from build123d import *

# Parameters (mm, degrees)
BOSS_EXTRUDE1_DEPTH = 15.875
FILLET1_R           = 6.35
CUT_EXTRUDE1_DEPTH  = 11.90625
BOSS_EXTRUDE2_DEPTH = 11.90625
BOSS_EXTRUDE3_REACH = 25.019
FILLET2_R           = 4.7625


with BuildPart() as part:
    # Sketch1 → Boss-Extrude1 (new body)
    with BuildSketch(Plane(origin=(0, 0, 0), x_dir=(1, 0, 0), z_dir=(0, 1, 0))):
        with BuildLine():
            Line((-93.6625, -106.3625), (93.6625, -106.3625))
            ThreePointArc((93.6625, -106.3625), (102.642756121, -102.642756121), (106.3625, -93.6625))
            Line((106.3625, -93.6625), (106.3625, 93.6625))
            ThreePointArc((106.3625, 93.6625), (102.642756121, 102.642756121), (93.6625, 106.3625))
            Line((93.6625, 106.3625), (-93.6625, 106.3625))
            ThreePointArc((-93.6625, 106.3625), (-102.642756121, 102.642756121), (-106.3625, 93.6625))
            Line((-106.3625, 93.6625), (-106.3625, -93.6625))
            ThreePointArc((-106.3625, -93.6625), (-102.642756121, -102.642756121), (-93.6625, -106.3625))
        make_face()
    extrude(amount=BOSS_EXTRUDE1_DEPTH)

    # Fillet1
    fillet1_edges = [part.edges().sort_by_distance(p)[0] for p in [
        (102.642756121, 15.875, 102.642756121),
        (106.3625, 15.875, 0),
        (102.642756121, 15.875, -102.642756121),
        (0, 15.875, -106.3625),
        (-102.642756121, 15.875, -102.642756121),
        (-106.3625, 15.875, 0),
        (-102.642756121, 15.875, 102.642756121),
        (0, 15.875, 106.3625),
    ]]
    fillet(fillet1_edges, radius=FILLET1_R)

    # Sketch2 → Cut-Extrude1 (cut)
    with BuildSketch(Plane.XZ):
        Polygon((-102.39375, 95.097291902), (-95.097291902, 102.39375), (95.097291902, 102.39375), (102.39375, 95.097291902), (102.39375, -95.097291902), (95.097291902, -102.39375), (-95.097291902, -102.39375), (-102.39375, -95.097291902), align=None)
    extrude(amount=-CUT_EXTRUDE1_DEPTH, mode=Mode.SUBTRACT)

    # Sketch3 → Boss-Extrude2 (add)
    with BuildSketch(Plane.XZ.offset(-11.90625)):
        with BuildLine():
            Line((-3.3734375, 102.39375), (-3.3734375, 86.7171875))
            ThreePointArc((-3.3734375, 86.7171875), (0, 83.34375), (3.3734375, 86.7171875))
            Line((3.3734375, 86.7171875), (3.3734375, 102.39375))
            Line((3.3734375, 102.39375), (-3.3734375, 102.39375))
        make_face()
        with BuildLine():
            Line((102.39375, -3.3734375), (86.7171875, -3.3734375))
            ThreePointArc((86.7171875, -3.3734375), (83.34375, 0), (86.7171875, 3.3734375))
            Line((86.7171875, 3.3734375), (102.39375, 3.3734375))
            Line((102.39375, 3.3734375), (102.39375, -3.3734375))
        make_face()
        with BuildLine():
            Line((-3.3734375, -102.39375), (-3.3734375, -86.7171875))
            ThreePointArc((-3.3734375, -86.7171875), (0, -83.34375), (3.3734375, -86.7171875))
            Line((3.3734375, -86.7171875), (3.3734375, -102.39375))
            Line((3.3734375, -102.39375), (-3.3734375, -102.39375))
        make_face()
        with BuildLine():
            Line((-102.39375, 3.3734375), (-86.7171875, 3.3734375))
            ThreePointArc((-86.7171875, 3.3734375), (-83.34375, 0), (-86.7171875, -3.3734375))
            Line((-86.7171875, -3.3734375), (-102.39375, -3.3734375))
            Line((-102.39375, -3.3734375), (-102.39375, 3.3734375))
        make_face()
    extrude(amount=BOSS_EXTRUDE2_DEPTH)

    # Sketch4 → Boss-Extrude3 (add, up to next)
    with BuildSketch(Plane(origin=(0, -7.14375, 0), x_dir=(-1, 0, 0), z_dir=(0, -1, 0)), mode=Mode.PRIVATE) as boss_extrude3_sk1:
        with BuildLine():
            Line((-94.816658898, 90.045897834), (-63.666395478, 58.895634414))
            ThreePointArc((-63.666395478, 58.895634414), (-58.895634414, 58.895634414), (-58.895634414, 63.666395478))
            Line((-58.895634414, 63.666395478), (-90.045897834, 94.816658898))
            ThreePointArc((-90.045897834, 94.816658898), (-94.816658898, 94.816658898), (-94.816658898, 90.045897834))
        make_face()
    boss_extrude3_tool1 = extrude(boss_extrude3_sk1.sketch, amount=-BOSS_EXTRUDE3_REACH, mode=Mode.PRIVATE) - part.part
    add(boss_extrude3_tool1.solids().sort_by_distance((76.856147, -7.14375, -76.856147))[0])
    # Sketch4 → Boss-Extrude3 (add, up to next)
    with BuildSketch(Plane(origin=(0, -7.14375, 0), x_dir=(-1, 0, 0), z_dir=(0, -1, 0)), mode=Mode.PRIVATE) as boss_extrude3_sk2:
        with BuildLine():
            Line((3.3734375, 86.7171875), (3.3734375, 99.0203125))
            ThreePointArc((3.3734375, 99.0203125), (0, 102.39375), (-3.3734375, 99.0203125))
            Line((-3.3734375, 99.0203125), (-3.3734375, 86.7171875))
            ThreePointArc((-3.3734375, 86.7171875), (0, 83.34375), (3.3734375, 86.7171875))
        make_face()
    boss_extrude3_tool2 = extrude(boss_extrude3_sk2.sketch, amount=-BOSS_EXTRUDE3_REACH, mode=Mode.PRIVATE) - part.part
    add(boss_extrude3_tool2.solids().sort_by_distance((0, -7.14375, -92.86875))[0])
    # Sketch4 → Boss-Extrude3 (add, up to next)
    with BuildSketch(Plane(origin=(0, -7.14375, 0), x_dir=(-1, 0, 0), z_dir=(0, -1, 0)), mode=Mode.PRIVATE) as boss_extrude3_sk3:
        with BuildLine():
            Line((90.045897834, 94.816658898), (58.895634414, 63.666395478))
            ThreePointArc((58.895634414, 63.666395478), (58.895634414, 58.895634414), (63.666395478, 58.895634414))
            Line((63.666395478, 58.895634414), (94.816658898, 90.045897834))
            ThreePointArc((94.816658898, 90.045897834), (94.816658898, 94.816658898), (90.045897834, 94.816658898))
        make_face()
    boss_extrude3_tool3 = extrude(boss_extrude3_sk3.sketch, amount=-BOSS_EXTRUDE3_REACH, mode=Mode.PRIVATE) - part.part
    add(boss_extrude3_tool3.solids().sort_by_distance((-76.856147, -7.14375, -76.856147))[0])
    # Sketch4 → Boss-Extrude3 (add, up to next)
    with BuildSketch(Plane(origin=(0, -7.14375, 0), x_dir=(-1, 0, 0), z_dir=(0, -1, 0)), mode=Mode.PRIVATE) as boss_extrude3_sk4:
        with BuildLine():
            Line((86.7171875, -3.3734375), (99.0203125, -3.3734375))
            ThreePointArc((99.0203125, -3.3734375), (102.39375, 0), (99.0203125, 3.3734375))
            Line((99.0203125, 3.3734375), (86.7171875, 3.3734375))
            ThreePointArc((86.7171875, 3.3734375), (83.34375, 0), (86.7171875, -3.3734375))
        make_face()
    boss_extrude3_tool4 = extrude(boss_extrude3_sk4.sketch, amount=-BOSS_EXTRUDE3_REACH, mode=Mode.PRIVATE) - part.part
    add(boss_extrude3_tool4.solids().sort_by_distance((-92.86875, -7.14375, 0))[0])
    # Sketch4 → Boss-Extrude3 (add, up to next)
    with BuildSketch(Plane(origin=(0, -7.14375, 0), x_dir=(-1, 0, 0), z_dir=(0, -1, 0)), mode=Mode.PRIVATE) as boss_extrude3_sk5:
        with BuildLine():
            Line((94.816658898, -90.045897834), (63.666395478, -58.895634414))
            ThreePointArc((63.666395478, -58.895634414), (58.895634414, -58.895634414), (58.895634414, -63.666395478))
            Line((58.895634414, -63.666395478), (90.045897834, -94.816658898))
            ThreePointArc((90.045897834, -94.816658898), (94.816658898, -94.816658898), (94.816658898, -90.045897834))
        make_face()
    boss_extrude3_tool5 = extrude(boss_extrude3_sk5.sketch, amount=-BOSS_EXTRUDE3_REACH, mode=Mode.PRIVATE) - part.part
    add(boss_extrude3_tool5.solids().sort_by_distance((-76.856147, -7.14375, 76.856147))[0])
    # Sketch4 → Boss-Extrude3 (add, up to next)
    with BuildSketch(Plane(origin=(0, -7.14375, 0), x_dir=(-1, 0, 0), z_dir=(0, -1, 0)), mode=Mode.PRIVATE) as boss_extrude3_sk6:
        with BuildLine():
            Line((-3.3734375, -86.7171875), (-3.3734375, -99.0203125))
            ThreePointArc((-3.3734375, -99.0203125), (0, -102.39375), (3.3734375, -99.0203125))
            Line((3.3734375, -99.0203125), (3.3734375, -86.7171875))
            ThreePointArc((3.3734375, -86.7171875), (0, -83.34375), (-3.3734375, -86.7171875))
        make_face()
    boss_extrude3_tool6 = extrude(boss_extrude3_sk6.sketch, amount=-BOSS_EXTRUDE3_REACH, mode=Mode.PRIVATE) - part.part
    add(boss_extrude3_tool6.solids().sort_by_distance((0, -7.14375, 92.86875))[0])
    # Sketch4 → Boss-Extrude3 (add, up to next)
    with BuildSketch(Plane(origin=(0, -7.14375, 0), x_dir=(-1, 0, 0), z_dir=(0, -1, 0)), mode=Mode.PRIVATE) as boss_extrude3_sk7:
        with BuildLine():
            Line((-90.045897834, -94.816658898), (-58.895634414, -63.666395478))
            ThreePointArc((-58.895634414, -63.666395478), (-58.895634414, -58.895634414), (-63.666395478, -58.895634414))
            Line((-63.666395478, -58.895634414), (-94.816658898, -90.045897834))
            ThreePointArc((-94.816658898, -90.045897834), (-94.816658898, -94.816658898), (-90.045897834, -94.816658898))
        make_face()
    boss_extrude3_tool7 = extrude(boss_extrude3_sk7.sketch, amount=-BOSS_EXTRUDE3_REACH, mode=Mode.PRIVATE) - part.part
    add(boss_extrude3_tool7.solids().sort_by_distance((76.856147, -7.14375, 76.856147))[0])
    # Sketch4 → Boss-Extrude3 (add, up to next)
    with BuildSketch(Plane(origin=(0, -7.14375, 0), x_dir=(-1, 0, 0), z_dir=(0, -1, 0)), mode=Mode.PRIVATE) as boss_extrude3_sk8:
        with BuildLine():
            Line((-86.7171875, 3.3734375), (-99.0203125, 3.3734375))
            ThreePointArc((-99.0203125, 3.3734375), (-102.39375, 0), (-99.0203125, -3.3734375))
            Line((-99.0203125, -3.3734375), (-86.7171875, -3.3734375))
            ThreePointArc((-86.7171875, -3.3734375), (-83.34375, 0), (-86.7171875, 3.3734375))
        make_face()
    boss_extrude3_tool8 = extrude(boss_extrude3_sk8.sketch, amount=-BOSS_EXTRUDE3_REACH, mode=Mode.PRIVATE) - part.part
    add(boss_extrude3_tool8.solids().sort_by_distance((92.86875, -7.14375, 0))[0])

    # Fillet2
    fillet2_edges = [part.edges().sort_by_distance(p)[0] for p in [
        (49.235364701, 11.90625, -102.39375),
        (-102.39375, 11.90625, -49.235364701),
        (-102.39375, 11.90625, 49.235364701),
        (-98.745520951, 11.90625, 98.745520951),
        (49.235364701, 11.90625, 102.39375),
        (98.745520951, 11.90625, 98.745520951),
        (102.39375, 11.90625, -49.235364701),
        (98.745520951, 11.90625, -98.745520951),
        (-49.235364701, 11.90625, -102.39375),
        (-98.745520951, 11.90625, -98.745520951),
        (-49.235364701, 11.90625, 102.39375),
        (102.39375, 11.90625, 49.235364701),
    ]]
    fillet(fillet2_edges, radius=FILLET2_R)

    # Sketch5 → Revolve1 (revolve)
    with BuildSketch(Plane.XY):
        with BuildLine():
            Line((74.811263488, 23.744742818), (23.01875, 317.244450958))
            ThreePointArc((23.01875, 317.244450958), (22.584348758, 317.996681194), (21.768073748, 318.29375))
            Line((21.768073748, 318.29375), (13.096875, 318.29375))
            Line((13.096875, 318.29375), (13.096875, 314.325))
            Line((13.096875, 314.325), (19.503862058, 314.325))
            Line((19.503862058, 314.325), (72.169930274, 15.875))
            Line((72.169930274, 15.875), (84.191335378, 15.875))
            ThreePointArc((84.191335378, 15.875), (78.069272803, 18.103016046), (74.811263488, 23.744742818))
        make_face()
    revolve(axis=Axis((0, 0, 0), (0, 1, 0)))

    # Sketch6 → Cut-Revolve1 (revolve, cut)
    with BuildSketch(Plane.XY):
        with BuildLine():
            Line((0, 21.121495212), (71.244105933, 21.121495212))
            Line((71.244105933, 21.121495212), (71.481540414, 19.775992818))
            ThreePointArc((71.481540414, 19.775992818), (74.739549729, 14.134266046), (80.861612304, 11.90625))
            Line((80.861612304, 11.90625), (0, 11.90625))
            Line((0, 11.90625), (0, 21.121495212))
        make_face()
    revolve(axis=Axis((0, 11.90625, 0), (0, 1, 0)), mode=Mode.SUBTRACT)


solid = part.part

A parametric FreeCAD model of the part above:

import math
import FreeCAD as App
import Part
import Sketcher
from FreeCAD import Vector
Q = App.Units.Quantity


def edges_at(feature, points):
    """Names of the edges that pass closest to the given points."""
    edges = feature.Shape.Edges
    near = lambda p: min(range(len(edges)), key=lambda i: edges[i].distToShape(Part.Vertex(*p))[0])
    return sorted({f"Edge{near(p) + 1}" for p in points})


def add_polygon(sketch, points):
    """Adds a closed chain of lines whose ends are joined by coincident constraints."""
    first, n = sketch.GeometryCount, len(points)
    for a, b in zip(points, points[1:] + points[:1]):
        sketch.addGeometry(Part.LineSegment(App.Vector(*a, 0), App.Vector(*b, 0)), False)
    for i in range(n):
        sketch.addConstraint(Sketcher.Constraint("Coincident", first + i, 2, first + (i + 1) % n, 1))

doc = App.newDocument("Part")
body = doc.addObject("PartDesign::Body", "Body")

sketch1 = doc.addObject("Sketcher::SketchObject", "Sketch")
body.addObject(sketch1)
sketch1.AttachmentSupport = (doc.XZ_Plane, [""])
sketch1.MapMode = "FlatFace"
sketch1.addGeometry(Part.LineSegment(Vector(-93.6625, 106.3625, 0), Vector(93.6625, 106.3625, 0)), False)
sketch1.addGeometry(Part.ArcOfCircle(Part.Circle(Vector(93.6625, 93.6625, 0), Vector(0, 0, 1), 12.7), math.radians(0), math.radians(90)), False)
sketch1.addGeometry(Part.LineSegment(Vector(106.3625, 93.6625, 0), Vector(106.3625, -93.6625, 0)), False)
sketch1.addGeometry(Part.ArcOfCircle(Part.Circle(Vector(93.6625, -93.6625, 0), Vector(0, 0, 1), 12.7), math.radians(-90), math.radians(0)), False)
sketch1.addGeometry(Part.LineSegment(Vector(93.6625, -106.3625, 0), Vector(-93.6625, -106.3625, 0)), False)
sketch1.addGeometry(Part.ArcOfCircle(Part.Circle(Vector(-93.6625, -93.6625, 0), Vector(0, 0, 1), 12.7), math.radians(180), math.radians(270)), False)
sketch1.addGeometry(Part.LineSegment(Vector(-106.3625, -93.6625, 0), Vector(-106.3625, 93.6625, 0)), False)
sketch1.addGeometry(Part.ArcOfCircle(Part.Circle(Vector(-93.6625, 93.6625, 0), Vector(0, 0, 1), 12.7), math.radians(90), math.radians(180)), False)
sketch1.addConstraint(Sketcher.Constraint("Tangent", 0, 2, 1, 2))
sketch1.addConstraint(Sketcher.Constraint("Tangent", 1, 1, 2, 1))
sketch1.addConstraint(Sketcher.Constraint("Tangent", 2, 2, 3, 2))
sketch1.addConstraint(Sketcher.Constraint("Tangent", 3, 1, 4, 1))
sketch1.addConstraint(Sketcher.Constraint("Tangent", 4, 2, 5, 2))
sketch1.addConstraint(Sketcher.Constraint("Tangent", 5, 1, 6, 1))
sketch1.addConstraint(Sketcher.Constraint("Tangent", 6, 2, 7, 2))
sketch1.addConstraint(Sketcher.Constraint("Tangent", 7, 1, 0, 1))
sketch1.addConstraint(Sketcher.Constraint("Horizontal", 0))
sketch1.addConstraint(Sketcher.Constraint("Vertical", 2))
sketch1.addConstraint(Sketcher.Constraint("Horizontal", 4))
sketch1.addConstraint(Sketcher.Constraint("Vertical", 6))
sketch1.addConstraint(Sketcher.Constraint("Equal", 1, 3))
sketch1.addConstraint(Sketcher.Constraint("Equal", 3, 5))
sketch1.addConstraint(Sketcher.Constraint("Equal", 5, 7))
sketch1.addConstraint(Sketcher.Constraint("Symmetric", 1, 3, 5, 3, -1, 1))
sketch1.addConstraint(Sketcher.Constraint("Equal", 4, 2))
sketch1.addConstraint(Sketcher.Constraint("Radius", 1, Q("0.5 in")))
sketch1.addConstraint(Sketcher.Constraint("DistanceX", 0, 1, 0, 2, Q("7.375 in")))
pad1 = doc.addObject("PartDesign::Pad", "Pad")
body.addObject(pad1)
pad1.Profile = sketch1
pad1.Length = Q("0.625 in")
pad1.Reversed = True
doc.recompute()

fillet = doc.addObject("PartDesign::Fillet", "Fillet")
body.addObject(fillet)
fillet.Base = (pad1, edges_at(pad1, [
    (102.643, 15.875, 102.643),
    (106.362, 15.875, 0),
    (102.643, 15.875, -102.643),
    (0, 15.875, -106.362),
    (-102.643, 15.875, -102.643),
    (-106.362, 15.875, 0),
    (-102.643, 15.875, 102.643),
    (0, 15.875, 106.362),
]))
fillet.Radius = Q("0.25 in")

sketch2 = doc.addObject("Sketcher::SketchObject", "Sketch001")
body.addObject(sketch2)
sketch2.AttachmentSupport = (doc.XZ_Plane, [""])
sketch2.MapMode = "FlatFace"
add_polygon(sketch2, [(-95.097292, 102.39375), (-102.39375, 95.097292), (-102.39375, -95.097292), (-95.097292, -102.39375), (95.097292, -102.39375), (102.39375, -95.097292), (102.39375, 95.097292), (95.097292, 102.39375)])
sketch2.addConstraint(Sketcher.Constraint("Vertical", 1))
sketch2.addConstraint(Sketcher.Constraint("Horizontal", 3))
sketch2.addConstraint(Sketcher.Constraint("Vertical", 5))
sketch2.addConstraint(Sketcher.Constraint("Horizontal", 7))
sketch2.addConstraint(Sketcher.Constraint("Symmetric", 0, 2, 4, 2, -1, 1))
sketch2.addConstraint(Sketcher.Constraint("Symmetric", 2, 2, 6, 2, -1, 1))
sketch2.addConstraint(Sketcher.Constraint("Perpendicular", 0, 2))
sketch2.addConstraint(Sketcher.Constraint("Perpendicular", 2, 4))
sketch2.addConstraint(Sketcher.Constraint("Perpendicular", 4, 6))
sketch2.addConstraint(Sketcher.Constraint("Horizontal", 1, 2, 4, 2))
sketch2.addConstraint(Sketcher.Constraint("Vertical", 3, 2, 6, 2))
sketch2.addConstraint(Sketcher.Constraint("Equal", 7, 1))
sketch2.addConstraint(Sketcher.Constraint("Distance", 0, Q("0.40625 in")))
sketch2.addConstraint(Sketcher.Constraint("DistanceX", 0, 2, -1, 1, Q("4.03125 in")))
pocket1 = doc.addObject("PartDesign::Pocket", "Pocket")
body.addObject(pocket1)
pocket1.Profile = sketch2
pocket1.Length = Q("0.46875 in")

sketch3 = doc.addObject("Sketcher::SketchObject", "Sketch002")
body.addObject(sketch3)
sketch3.AttachmentSupport = (doc.XZ_Plane, [""])
sketch3.MapMode = "FlatFace"
sketch3.AttachmentOffset = App.Placement(Vector(0, 0, -0.46875 * 25.4), App.Rotation())
sketch3.addGeometry(Part.LineSegment(Vector(-3.373438, 102.39375, 0), Vector(-3.373438, 86.717187, 0)), False)
sketch3.addGeometry(Part.ArcOfCircle(Part.Circle(Vector(0, 86.717187, 0), Vector(0, 0, 1), 3.373438), math.radians(180), math.radians(360)), False)
sketch3.addGeometry(Part.LineSegment(Vector(3.373438, 86.717187, 0), Vector(3.373438, 102.39375, 0)), False)
sketch3.addGeometry(Part.LineSegment(Vector(3.373438, 102.39375, 0), Vector(-3.373438, 102.39375, 0)), False)
sketch3.addGeometry(Part.LineSegment(Vector(86.717187, -3.373438, 0), Vector(102.39375, -3.373438, 0)), False)
sketch3.addGeometry(Part.LineSegment(Vector(102.39375, -3.373438, 0), Vector(102.39375, 3.373438, 0)), False)
sketch3.addGeometry(Part.LineSegment(Vector(102.39375, 3.373438, 0), Vector(86.717187, 3.373438, 0)), False)
sketch3.addGeometry(Part.ArcOfCircle(Part.Circle(Vector(86.717187, 0, 0), Vector(0, 0, 1), 3.373438), math.radians(90), math.radians(270)), False)
sketch3.addGeometry(Part.LineSegment(Vector(-3.373438, -86.717187, 0), Vector(-3.373438, -102.39375, 0)), False)
sketch3.addGeometry(Part.LineSegment(Vector(-3.373438, -102.39375, 0), Vector(3.373438, -102.39375, 0)), False)
sketch3.addGeometry(Part.LineSegment(Vector(3.373438, -102.39375, 0), Vector(3.373438, -86.717187, 0)), False)
sketch3.addGeometry(Part.ArcOfCircle(Part.Circle(Vector(0, -86.717187, 0), Vector(0, 0, 1), 3.373438), math.radians(0), math.radians(180)), False)
sketch3.addGeometry(Part.LineSegment(Vector(-86.717187, 3.373438, 0), Vector(-102.39375, 3.373438, 0)), False)
sketch3.addGeometry(Part.LineSegment(Vector(-102.39375, 3.373438, 0), Vector(-102.39375, -3.373438, 0)), False)
sketch3.addGeometry(Part.LineSegment(Vector(-102.39375, -3.373438, 0), Vector(-86.717187, -3.373438, 0)), False)
sketch3.addGeometry(Part.ArcOfCircle(Part.Circle(Vector(-86.717187, 0, 0), Vector(0, 0, 1), 3.373438), math.radians(-90), math.radians(90)), False)
sketch3.addConstraint(Sketcher.Constraint("Tangent", 0, 2, 1, 1))
sketch3.addConstraint(Sketcher.Constraint("Tangent", 1, 2, 2, 1))
sketch3.addConstraint(Sketcher.Constraint("Coincident", 2, 2, 3, 1))
sketch3.addConstraint(Sketcher.Constraint("Coincident", 3, 2, 0, 1))
sketch3.addConstraint(Sketcher.Constraint("Coincident", 4, 2, 5, 1))
sketch3.addConstraint(Sketcher.Constraint("Coincident", 5, 2, 6, 1))
sketch3.addConstraint(Sketcher.Constraint("Tangent", 6, 2, 7, 1))
sketch3.addConstraint(Sketcher.Constraint("Tangent", 7, 2, 4, 1))
sketch3.addConstraint(Sketcher.Constraint("Coincident", 8, 2, 9, 1))
sketch3.addConstraint(Sketcher.Constraint("Coincident", 9, 2, 10, 1))
sketch3.addConstraint(Sketcher.Constraint("Tangent", 10, 2, 11, 1))
sketch3.addConstraint(Sketcher.Constraint("Tangent", 11, 2, 8, 1))
sketch3.addConstraint(Sketcher.Constraint("Coincident", 12, 2, 13, 1))
sketch3.addConstraint(Sketcher.Constraint("Coincident", 13, 2, 14, 1))
sketch3.addConstraint(Sketcher.Constraint("Tangent", 14, 2, 15, 1))
sketch3.addConstraint(Sketcher.Constraint("Tangent", 15, 2, 12, 1))
sketch3.addConstraint(Sketcher.Constraint("Vertical", 0))
sketch3.addConstraint(Sketcher.Constraint("Vertical", 2))
sketch3.addConstraint(Sketcher.Constraint("Horizontal", 3))
sketch3.addConstraint(Sketcher.Constraint("Horizontal", 4))
sketch3.addConstraint(Sketcher.Constraint("Vertical", 5))
sketch3.addConstraint(Sketcher.Constraint("Horizontal", 6))
sketch3.addConstraint(Sketcher.Constraint("Vertical", 8))
sketch3.addConstraint(Sketcher.Constraint("Horizontal", 9))
sketch3.addConstraint(Sketcher.Constraint("Vertical", 10))
sketch3.addConstraint(Sketcher.Constraint("Horizontal", 12))
sketch3.addConstraint(Sketcher.Constraint("Vertical", 13))
sketch3.addConstraint(Sketcher.Constraint("Horizontal", 14))
sketch3.addConstraint(Sketcher.Constraint("Equal", 1, 7))
sketch3.addConstraint(Sketcher.Constraint("Equal", 7, 11))
sketch3.addConstraint(Sketcher.Constraint("Equal", 11, 15))
sketch3.addConstraint(Sketcher.Constraint("Symmetric", 1, 3, 11, 3, -1, 1))
sketch3.addConstraint(Sketcher.Constraint("Symmetric", 7, 3, 15, 3, -1, 1))
sketch3.addConstraint(Sketcher.Constraint("Symmetric", 5, 2, 12, 2, -2))
sketch3.addConstraint(Sketcher.Constraint("Symmetric", 3, 2, 8, 2, -1))
sketch3.addConstraint(Sketcher.Constraint("Equal", 14, 0))
sketch3.addConstraint(Sketcher.Constraint("DistanceX", 3, 2, 3, 1, Q("0.265625 in")))
sketch3.addConstraint(Sketcher.Constraint("DistanceY", -1, 1, 2, 2, Q("4.03125 in")))
sketch3.addConstraint(Sketcher.Constraint("DistanceX", -1, 1, 4, 2, Q("4.03125 in")))
sketch3.addConstraint(Sketcher.Constraint("DistanceY", 11, 3, 1, 3, Q("6.828125 in")))
pad2 = doc.addObject("PartDesign::Pad", "Pad001")
body.addObject(pad2)
pad2.Profile = sketch3
pad2.Length = Q("0.46875 in")

sketch4 = doc.addObject("Sketcher::SketchObject", "Sketch003")
body.addObject(sketch4)
sketch4.AttachmentSupport = (doc.XZ_Plane, [""])
sketch4.MapMode = "FlatFace"
sketch4.AttachmentOffset = App.Placement(Vector(0, 0, 0.28125 * 25.4), App.Rotation())
sketch4.addGeometry(Part.LineSegment(Vector(94.816659, -90.045898, 0), Vector(63.666395, -58.895634, 0)), False)
sketch4.addGeometry(Part.ArcOfCircle(Part.Circle(Vector(61.281015, -61.281015, 0), Vector(0, 0, 1), 3.373438), math.radians(45), math.radians(225)), False)
sketch4.addGeometry(Part.LineSegment(Vector(58.895634, -63.666395, 0), Vector(90.045898, -94.816659, 0)), False)
sketch4.addGeometry(Part.ArcOfCircle(Part.Circle(Vector(92.431278, -92.431278, 0), Vector(0, 0, 1), 3.373438), math.radians(-135), math.radians(45)), False)
sketch4.addConstraint(Sketcher.Constraint("Tangent", 0, 2, 1, 1))
sketch4.addConstraint(Sketcher.Constraint("Tangent", 1, 2, 2, 1))
sketch4.addConstraint(Sketcher.Constraint("Tangent", 2, 2, 3, 1))
sketch4.addConstraint(Sketcher.Constraint("Tangent", 3, 2, 0, 1))
sketch4.addConstraint(Sketcher.Constraint("Equal", 1, 3))
sketch4.addConstraint(Sketcher.Constraint("Angle", 0, Q("135 deg")))
sketch4.addConstraint(Sketcher.Constraint("Distance", 0, Q("1.734375 in")))
sketch4.addConstraint(Sketcher.Constraint("Radius", 1, 3.373438))
sketch4.addConstraint(Sketcher.Constraint("DistanceX", -1, 1, 3, 3, 92.431278))
sketch4.addConstraint(Sketcher.Constraint("DistanceY", 3, 3, -1, 1, 92.431278))
pad3 = doc.addObject("PartDesign::Pad", "Pad002")
body.addObject(pad3)
pad3.Profile = sketch4
pad3.Type = "UpToFirst"
pad3.Reversed = True

sketch5 = doc.addObject("Sketcher::SketchObject", "Sketch004")
body.addObject(sketch5)
sketch5.AttachmentSupport = (doc.XZ_Plane, [""])
sketch5.MapMode = "FlatFace"
sketch5.AttachmentOffset = App.Placement(Vector(0, 0, 0.28125 * 25.4), App.Rotation())
sketch5.addGeometry(Part.LineSegment(Vector(-3.373438, -86.717187, 0), Vector(-3.373438, -99.020313, 0)), False)
sketch5.addGeometry(Part.ArcOfCircle(Part.Circle(Vector(0, -99.020313, 0), Vector(0, 0, 1), 3.373438), math.radians(180), math.radians(360)), False)
sketch5.addGeometry(Part.LineSegment(Vector(3.373438, -99.020313, 0), Vector(3.373438, -86.717187, 0)), False)
sketch5.addGeometry(Part.ArcOfCircle(Part.Circle(Vector(0, -86.717187, 0), Vector(0, 0, 1), 3.373438), math.radians(0), math.radians(180)), False)
sketch5.addConstraint(Sketcher.Constraint("Tangent", 0, 2, 1, 1))
sketch5.addConstraint(Sketcher.Constraint("Tangent", 1, 2, 2, 1))
sketch5.addConstraint(Sketcher.Constraint("Tangent", 2, 2, 3, 1))
sketch5.addConstraint(Sketcher.Constraint("Tangent", 3, 2, 0, 1))
sketch5.addConstraint(Sketcher.Constraint("Vertical", 0))
sketch5.addConstraint(Sketcher.Constraint("Vertical", 2))
sketch5.addConstraint(Sketcher.Constraint("PointOnObject", 1, 3, -2))
sketch5.addConstraint(Sketcher.Constraint("DistanceY", 0, 2, 0, 1, Q("0.484375 in")))
sketch5.addConstraint(Sketcher.Constraint("DistanceX", 0, 2, 1, 2, Q("0.265625 in")))
sketch5.addConstraint(Sketcher.Constraint("DistanceY", 1, 3, -1, 1, 99.020313))
pad4 = doc.addObject("PartDesign::Pad", "Pad003")
body.addObject(pad4)
pad4.Profile = sketch5
pad4.Type = "UpToFirst"
pad4.Reversed = True

sketch6 = doc.addObject("Sketcher::SketchObject", "Sketch005")
body.addObject(sketch6)
sketch6.AttachmentSupport = (doc.XZ_Plane, [""])
sketch6.MapMode = "FlatFace"
sketch6.AttachmentOffset = App.Placement(Vector(0, 0, 0.28125 * 25.4), App.Rotation())
sketch6.addGeometry(Part.LineSegment(Vector(-90.045898, -94.816659, 0), Vector(-58.895634, -63.666395, 0)), False)
sketch6.addGeometry(Part.ArcOfCircle(Part.Circle(Vector(-61.281015, -61.281015, 0), Vector(0, 0, 1), 3.373438), math.radians(-45), math.radians(135)), False)
sketch6.addGeometry(Part.LineSegment(Vector(-63.666395, -58.895634, 0), Vector(-94.816659, -90.045898, 0)), False)
sketch6.addGeometry(Part.ArcOfCircle(Part.Circle(Vector(-92.431278, -92.431278, 0), Vector(0, 0, 1), 3.373438), math.radians(135), math.radians(315)), False)
sketch6.addConstraint(Sketcher.Constraint("Tangent", 0, 2, 1, 1))
sketch6.addConstraint(Sketcher.Constraint("Tangent", 1, 2, 2, 1))
sketch6.addConstraint(Sketcher.Constraint("Tangent", 2, 2, 3, 1))
sketch6.addConstraint(Sketcher.Constraint("Tangent", 3, 2, 0, 1))
sketch6.addConstraint(Sketcher.Constraint("Equal", 1, 3))
sketch6.addConstraint(Sketcher.Constraint("Angle", 0, Q("45 deg")))
sketch6.addConstraint(Sketcher.Constraint("Distance", 0, Q("1.734375 in")))
sketch6.addConstraint(Sketcher.Constraint("Radius", 1, 3.373438))
sketch6.addConstraint(Sketcher.Constraint("DistanceX", 3, 3, -1, 1, 92.431278))
sketch6.addConstraint(Sketcher.Constraint("DistanceY", 3, 3, -1, 1, 92.431278))
pad5 = doc.addObject("PartDesign::Pad", "Pad004")
body.addObject(pad5)
pad5.Profile = sketch6
pad5.Type = "UpToFirst"
pad5.Reversed = True

sketch7 = doc.addObject("Sketcher::SketchObject", "Sketch006")
body.addObject(sketch7)
sketch7.AttachmentSupport = (doc.XZ_Plane, [""])
sketch7.MapMode = "FlatFace"
sketch7.AttachmentOffset = App.Placement(Vector(0, 0, 0.28125 * 25.4), App.Rotation())
sketch7.addGeometry(Part.LineSegment(Vector(-86.717187, 3.373438, 0), Vector(-99.020313, 3.373438, 0)), False)
sketch7.addGeometry(Part.ArcOfCircle(Part.Circle(Vector(-99.020313, 0, 0), Vector(0, 0, 1), 3.373438), math.radians(90), math.radians(270)), False)
sketch7.addGeometry(Part.LineSegment(Vector(-99.020313, -3.373438, 0), Vector(-86.717187, -3.373438, 0)), False)
sketch7.addGeometry(Part.ArcOfCircle(Part.Circle(Vector(-86.717187, 0, 0), Vector(0, 0, 1), 3.373438), math.radians(-90), math.radians(90)), False)
sketch7.addConstraint(Sketcher.Constraint("Tangent", 0, 2, 1, 1))
sketch7.addConstraint(Sketcher.Constraint("Tangent", 1, 2, 2, 1))
sketch7.addConstraint(Sketcher.Constraint("Tangent", 2, 2, 3, 1))
sketch7.addConstraint(Sketcher.Constraint("Tangent", 3, 2, 0, 1))
sketch7.addConstraint(Sketcher.Constraint("Horizontal", 0))
sketch7.addConstraint(Sketcher.Constraint("Horizontal", 2))
sketch7.addConstraint(Sketcher.Constraint("PointOnObject", 1, 3, -1))
sketch7.addConstraint(Sketcher.Constraint("DistanceX", 0, 2, 0, 1, Q("0.484375 in")))
sketch7.addConstraint(Sketcher.Constraint("DistanceY", 1, 2, 0, 2, Q("0.265625 in")))
sketch7.addConstraint(Sketcher.Constraint("DistanceX", 1, 3, -1, 1, 99.020313))
pad6 = doc.addObject("PartDesign::Pad", "Pad005")
body.addObject(pad6)
pad6.Profile = sketch7
pad6.Type = "UpToFirst"
pad6.Reversed = True

sketch8 = doc.addObject("Sketcher::SketchObject", "Sketch007")
body.addObject(sketch8)
sketch8.AttachmentSupport = (doc.XZ_Plane, [""])
sketch8.MapMode = "FlatFace"
sketch8.AttachmentOffset = App.Placement(Vector(0, 0, 0.28125 * 25.4), App.Rotation())
sketch8.addGeometry(Part.LineSegment(Vector(-94.816659, 90.045898, 0), Vector(-63.666395, 58.895634, 0)), False)
sketch8.addGeometry(Part.ArcOfCircle(Part.Circle(Vector(-61.281015, 61.281015, 0), Vector(0, 0, 1), 3.373438), math.radians(-135), math.radians(45)), False)
sketch8.addGeometry(Part.LineSegment(Vector(-58.895634, 63.666395, 0), Vector(-90.045898, 94.816659, 0)), False)
sketch8.addGeometry(Part.ArcOfCircle(Part.Circle(Vector(-92.431278, 92.431278, 0), Vector(0, 0, 1), 3.373438), math.radians(45), math.radians(225)), False)
sketch8.addConstraint(Sketcher.Constraint("Tangent", 0, 2, 1, 1))
sketch8.addConstraint(Sketcher.Constraint("Tangent", 1, 2, 2, 1))
sketch8.addConstraint(Sketcher.Constraint("Tangent", 2, 2, 3, 1))
sketch8.addConstraint(Sketcher.Constraint("Tangent", 3, 2, 0, 1))
sketch8.addConstraint(Sketcher.Constraint("Equal", 1, 3))
sketch8.addConstraint(Sketcher.Constraint("Angle", 0, Q("-45 deg")))
sketch8.addConstraint(Sketcher.Constraint("Distance", 0, Q("1.734375 in")))
sketch8.addConstraint(Sketcher.Constraint("Radius", 1, 3.373438))
sketch8.addConstraint(Sketcher.Constraint("DistanceX", 3, 3, -1, 1, 92.431278))
sketch8.addConstraint(Sketcher.Constraint("DistanceY", -1, 1, 3, 3, 92.431278))
pad7 = doc.addObject("PartDesign::Pad", "Pad006")
body.addObject(pad7)
pad7.Profile = sketch8
pad7.Type = "UpToFirst"
pad7.Reversed = True

sketch9 = doc.addObject("Sketcher::SketchObject", "Sketch008")
body.addObject(sketch9)
sketch9.AttachmentSupport = (doc.XZ_Plane, [""])
sketch9.MapMode = "FlatFace"
sketch9.AttachmentOffset = App.Placement(Vector(0, 0, 0.28125 * 25.4), App.Rotation())
sketch9.addGeometry(Part.LineSegment(Vector(3.373438, 86.717187, 0), Vector(3.373438, 99.020313, 0)), False)
sketch9.addGeometry(Part.ArcOfCircle(Part.Circle(Vector(0, 99.020313, 0), Vector(0, 0, 1), 3.373438), math.radians(0), math.radians(180)), False)
sketch9.addGeometry(Part.LineSegment(Vector(-3.373438, 99.020313, 0), Vector(-3.373438, 86.717187, 0)), False)
sketch9.addGeometry(Part.ArcOfCircle(Part.Circle(Vector(0, 86.717187, 0), Vector(0, 0, 1), 3.373438), math.radians(180), math.radians(360)), False)
sketch9.addConstraint(Sketcher.Constraint("Tangent", 0, 2, 1, 1))
sketch9.addConstraint(Sketcher.Constraint("Tangent", 1, 2, 2, 1))
sketch9.addConstraint(Sketcher.Constraint("Tangent", 2, 2, 3, 1))
sketch9.addConstraint(Sketcher.Constraint("Tangent", 3, 2, 0, 1))
sketch9.addConstraint(Sketcher.Constraint("Vertical", 0))
sketch9.addConstraint(Sketcher.Constraint("Vertical", 2))
sketch9.addConstraint(Sketcher.Constraint("PointOnObject", 1, 3, -2))
sketch9.addConstraint(Sketcher.Constraint("DistanceY", 0, 1, 0, 2, Q("0.484375 in")))
sketch9.addConstraint(Sketcher.Constraint("DistanceX", 1, 2, 0, 2, Q("0.265625 in")))
sketch9.addConstraint(Sketcher.Constraint("DistanceY", -1, 1, 1, 3, 99.020313))
pad8 = doc.addObject("PartDesign::Pad", "Pad007")
body.addObject(pad8)
pad8.Profile = sketch9
pad8.Type = "UpToFirst"
pad8.Reversed = True

sketch10 = doc.addObject("Sketcher::SketchObject", "Sketch009")
body.addObject(sketch10)
sketch10.AttachmentSupport = (doc.XZ_Plane, [""])
sketch10.MapMode = "FlatFace"
sketch10.AttachmentOffset = App.Placement(Vector(0, 0, 0.28125 * 25.4), App.Rotation())
sketch10.addGeometry(Part.LineSegment(Vector(90.045898, 94.816659, 0), Vector(58.895634, 63.666395, 0)), False)
sketch10.addGeometry(Part.ArcOfCircle(Part.Circle(Vector(61.281015, 61.281015, 0), Vector(0, 0, 1), 3.373438), math.radians(135), math.radians(315)), False)
sketch10.addGeometry(Part.LineSegment(Vector(63.666395, 58.895634, 0), Vector(94.816659, 90.045898, 0)), False)
sketch10.addGeometry(Part.ArcOfCircle(Part.Circle(Vector(92.431278, 92.431278, 0), Vector(0, 0, 1), 3.373438), math.radians(-45), math.radians(135)), False)
sketch10.addConstraint(Sketcher.Constraint("Tangent", 0, 2, 1, 1))
sketch10.addConstraint(Sketcher.Constraint("Tangent", 1, 2, 2, 1))
sketch10.addConstraint(Sketcher.Constraint("Tangent", 2, 2, 3, 1))
sketch10.addConstraint(Sketcher.Constraint("Tangent", 3, 2, 0, 1))
sketch10.addConstraint(Sketcher.Constraint("Equal", 1, 3))
sketch10.addConstraint(Sketcher.Constraint("Angle", 0, Q("-135 deg")))
sketch10.addConstraint(Sketcher.Constraint("Distance", 0, Q("1.734375 in")))
sketch10.addConstraint(Sketcher.Constraint("Radius", 1, 3.373438))
sketch10.addConstraint(Sketcher.Constraint("DistanceX", -1, 1, 3, 3, 92.431278))
sketch10.addConstraint(Sketcher.Constraint("DistanceY", -1, 1, 3, 3, 92.431278))
pad9 = doc.addObject("PartDesign::Pad", "Pad008")
body.addObject(pad9)
pad9.Profile = sketch10
pad9.Type = "UpToFirst"
pad9.Reversed = True

sketch11 = doc.addObject("Sketcher::SketchObject", "Sketch010")
body.addObject(sketch11)
sketch11.AttachmentSupport = (doc.XZ_Plane, [""])
sketch11.MapMode = "FlatFace"
sketch11.AttachmentOffset = App.Placement(Vector(0, 0, 0.28125 * 25.4), App.Rotation())
sketch11.addGeometry(Part.LineSegment(Vector(86.717187, -3.373438, 0), Vector(99.020313, -3.373438, 0)), False)
sketch11.addGeometry(Part.ArcOfCircle(Part.Circle(Vector(99.020313, 0, 0), Vector(0, 0, 1), 3.373438), math.radians(-90), math.radians(90)), False)
sketch11.addGeometry(Part.LineSegment(Vector(99.020313, 3.373438, 0), Vector(86.717187, 3.373438, 0)), False)
sketch11.addGeometry(Part.ArcOfCircle(Part.Circle(Vector(86.717187, 0, 0), Vector(0, 0, 1), 3.373438), math.radians(90), math.radians(270)), False)
sketch11.addConstraint(Sketcher.Constraint("Tangent", 0, 2, 1, 1))
sketch11.addConstraint(Sketcher.Constraint("Tangent", 1, 2, 2, 1))
sketch11.addConstraint(Sketcher.Constraint("Tangent", 2, 2, 3, 1))
sketch11.addConstraint(Sketcher.Constraint("Tangent", 3, 2, 0, 1))
sketch11.addConstraint(Sketcher.Constraint("Horizontal", 0))
sketch11.addConstraint(Sketcher.Constraint("Horizontal", 2))
sketch11.addConstraint(Sketcher.Constraint("PointOnObject", 1, 3, -1))
sketch11.addConstraint(Sketcher.Constraint("DistanceX", 0, 1, 0, 2, Q("0.484375 in")))
sketch11.addConstraint(Sketcher.Constraint("DistanceY", 0, 2, 1, 2, Q("0.265625 in")))
sketch11.addConstraint(Sketcher.Constraint("DistanceX", -1, 1, 1, 3, 99.020313))
pad10 = doc.addObject("PartDesign::Pad", "Pad009")
body.addObject(pad10)
pad10.Profile = sketch11
pad10.Type = "UpToFirst"
pad10.Reversed = True
doc.recompute()

fillet2 = doc.addObject("PartDesign::Fillet", "Fillet001")
body.addObject(fillet2)
fillet2.Base = (pad10, edges_at(pad10, [
    (49.235, 11.906, -102.394),
    (-102.394, 11.906, -49.235),
    (-102.394, 11.906, 49.235),
    (-98.746, 11.906, 98.746),
    (49.235, 11.906, 102.394),
    (98.746, 11.906, 98.746),
    (102.394, 11.906, -49.235),
    (98.746, 11.906, -98.746),
    (-49.235, 11.906, -102.394),
    (-98.746, 11.906, -98.746),
    (-49.235, 11.906, 102.394),
    (102.394, 11.906, 49.235),
]))
fillet2.Radius = Q("0.1875 in")

sketch12 = doc.addObject("Sketcher::SketchObject", "Sketch011")
body.addObject(sketch12)
sketch12.AttachmentSupport = (doc.XY_Plane, [""])
sketch12.MapMode = "FlatFace"
sketch12.addGeometry(Part.LineSegment(Vector(74.811263, 23.744743, 0), Vector(23.01875, 317.244451, 0)), False)
sketch12.addGeometry(Part.ArcOfCircle(Part.Circle(Vector(21.768074, 317.02375, 0), Vector(0, 0, 1), 1.27), math.radians(10.007686), math.radians(90)), False)
sketch12.addGeometry(Part.LineSegment(Vector(21.768074, 318.29375, 0), Vector(13.096875, 318.29375, 0)), False)
sketch12.addGeometry(Part.LineSegment(Vector(13.096875, 318.29375, 0), Vector(13.096875, 314.325, 0)), False)
sketch12.addGeometry(Part.LineSegment(Vector(13.096875, 314.325, 0), Vector(19.503862, 314.325, 0)), False)
sketch12.addGeometry(Part.LineSegment(Vector(19.503862, 314.325, 0), Vector(72.16993, 15.875, 0)), False)
sketch12.addGeometry(Part.LineSegment(Vector(72.16993, 15.875, 0), Vector(84.191335, 15.875, 0)), False)
sketch12.addGeometry(Part.ArcOfCircle(Part.Circle(Vector(84.191335, 25.4, 0), Vector(0, 0, 1), 9.525), math.radians(-169.992314), math.radians(-90)), False)
sketch12.addConstraint(Sketcher.Constraint("Tangent", 0, 2, 1, 1))
sketch12.addConstraint(Sketcher.Constraint("Tangent", 1, 2, 2, 1))
sketch12.addConstraint(Sketcher.Constraint("Coincident", 2, 2, 3, 1))
sketch12.addConstraint(Sketcher.Constraint("Coincident", 3, 2, 4, 1))
sketch12.addConstraint(Sketcher.Constraint("Coincident", 4, 2, 5, 1))
sketch12.addConstraint(Sketcher.Constraint("Coincident", 5, 2, 6, 1))
sketch12.addConstraint(Sketcher.Constraint("Tangent", 6, 2, 7, 2))
sketch12.addConstraint(Sketcher.Constraint("Tangent", 7, 1, 0, 1))
sketch12.addConstraint(Sketcher.Constraint("Horizontal", 2))
sketch12.addConstraint(Sketcher.Constraint("Vertical", 3))
sketch12.addConstraint(Sketcher.Constraint("Horizontal", 4))
sketch12.addConstraint(Sketcher.Constraint("Horizontal", 6))
sketch12.addConstraint(Sketcher.Constraint("Parallel", 0, 5))
sketch12.addConstraint(Sketcher.Constraint("Radius", 1, Q("0.05 in")))
sketch12.addConstraint(Sketcher.Constraint("DistanceY", -1, 1, 7, 3, Q("1 in")))
sketch12.addConstraint(Sketcher.Constraint("Radius", 7, Q("0.375 in")))
sketch12.addConstraint(Sketcher.Constraint("DistanceY", 3, 2, 3, 1, Q("0.15625 in")))
sketch12.addConstraint(Sketcher.Constraint("DistanceY", 5, 2, 4, 2, Q("11.75 in")))
sketch12.addConstraint(Sketcher.Constraint("DistanceX", -1, 1, 0, 2, Q("0.90625 in")))
sketch12.addConstraint(Sketcher.Constraint("DistanceX", -1, 1, 2, 2, Q("0.515625 in")))
sketch12.addConstraint(Sketcher.Constraint("DistanceX", 4, 2, 7, 1, 55.307401))
sketch12.addConstraint(Sketcher.Constraint("DistanceX", 4, 1, 4, 2, 6.406987))
revolution = doc.addObject("PartDesign::Revolution", "Revolution")
body.addObject(revolution)
revolution.Profile = sketch12
revolution.ReferenceAxis = (sketch12, ["V_Axis"])
revolution.Angle = 360

sketch13 = doc.addObject("Sketcher::SketchObject", "Sketch012")
body.addObject(sketch13)
sketch13.AttachmentSupport = (doc.XY_Plane, [""])
sketch13.MapMode = "FlatFace"
sketch13.addGeometry(Part.LineSegment(Vector(71.244106, 21.121495, 0), Vector(0, 21.121495, 0)), False)
sketch13.addGeometry(Part.LineSegment(Vector(0, 21.121495, 0), Vector(0, 11.90625, 0)), False)
sketch13.addGeometry(Part.LineSegment(Vector(0, 11.90625, 0), Vector(80.861612, 11.90625, 0)), False)
sketch13.addGeometry(Part.ArcOfCircle(Part.Circle(Vector(80.861612, 21.43125, 0), Vector(0, 0, 1), 9.525), math.radians(-169.992314), math.radians(-90)), False)
sketch13.addGeometry(Part.LineSegment(Vector(71.48154, 19.775993, 0), Vector(71.244106, 21.121495, 0)), False)
sketch13.addConstraint(Sketcher.Constraint("Coincident", 0, 2, 1, 1))
sketch13.addConstraint(Sketcher.Constraint("Coincident", 1, 2, 2, 1))
sketch13.addConstraint(Sketcher.Constraint("Tangent", 2, 2, 3, 2))
sketch13.addConstraint(Sketcher.Constraint("Tangent", 3, 1, 4, 1))
sketch13.addConstraint(Sketcher.Constraint("Coincident", 4, 2, 0, 1))
sketch13.addConstraint(Sketcher.Constraint("Horizontal", 0))
sketch13.addConstraint(Sketcher.Constraint("Vertical", 1))
sketch13.addConstraint(Sketcher.Constraint("Horizontal", 2))
sketch13.addConstraint(Sketcher.Constraint("PointOnObject", 0, 2, -2))
sketch13.addConstraint(Sketcher.Constraint("Radius", 3, Q("0.375 in")))
sketch13.addConstraint(Sketcher.Constraint("DistanceY", -1, 1, 3, 3, Q("0.84375 in")))
sketch13.addConstraint(Sketcher.Constraint("Distance", 4, 1.366291))
sketch13.addConstraint(Sketcher.Constraint("DistanceX", 0, 2, 0, 1, 71.244106))
sketch13.addConstraint(Sketcher.Constraint("DistanceX", 2, 1, 2, 2, 80.861612))
groove = doc.addObject("PartDesign::Groove", "Groove")
body.addObject(groove)
groove.Profile = sketch13
groove.ReferenceAxis = (sketch13, ["V_Axis"])
groove.Angle = 360

doc.recompute()
